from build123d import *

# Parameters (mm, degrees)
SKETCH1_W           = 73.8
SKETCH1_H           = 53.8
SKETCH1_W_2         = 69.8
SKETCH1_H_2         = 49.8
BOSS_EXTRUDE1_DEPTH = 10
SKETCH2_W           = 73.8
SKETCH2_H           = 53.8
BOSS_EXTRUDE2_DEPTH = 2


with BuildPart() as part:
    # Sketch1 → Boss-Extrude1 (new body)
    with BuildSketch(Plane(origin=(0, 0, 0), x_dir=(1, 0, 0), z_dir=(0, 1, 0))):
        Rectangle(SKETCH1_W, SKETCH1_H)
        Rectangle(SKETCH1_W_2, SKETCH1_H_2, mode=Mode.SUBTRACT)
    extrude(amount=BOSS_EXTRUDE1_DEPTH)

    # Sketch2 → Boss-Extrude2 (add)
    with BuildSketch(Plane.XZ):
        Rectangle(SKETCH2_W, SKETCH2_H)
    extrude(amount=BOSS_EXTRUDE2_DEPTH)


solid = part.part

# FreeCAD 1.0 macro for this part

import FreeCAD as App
import Part
import Sketcher

V = App.Vector

doc = App.newDocument("Part")
body = doc.addObject("PartDesign::Body", "Body")

# Sketch on XZ plane
sketch1 = body.newObject("Sketcher::SketchObject", "Sketch")
sketch1.AttachmentSupport = (doc.getObject("XZ_Plane"), [""])
sketch1.MapMode = "FlatFace"
sketch1.addGeometry(Part.LineSegment(V(-37, -27, 0), V(-37, 27, 0)), False)
sketch1.addGeometry(Part.LineSegment(V(-37, 27, 0), V(37, 27, 0)), False)
sketch1.addGeometry(Part.LineSegment(V(37, 27, 0), V(37, -27, 0)), False)
sketch1.addGeometry(Part.LineSegment(V(37, -27, 0), V(-37, -27, 0)), False)
sketch1.addGeometry(Part.LineSegment(V(35, 25, 0), V(-35, 25, 0)), False)
sketch1.addGeometry(Part.LineSegment(V(-35, 25, 0), V(-35, -25, 0)), False)
sketch1.addGeometry(Part.LineSegment(V(-35, -25, 0), V(35, -25, 0)), False)
sketch1.addGeometry(Part.LineSegment(V(35, -25, 0), V(35, 25, 0)), False)
sketch1.addConstraint(Sketcher.Constraint("Coincident", 0, 2, 1, 1))
sketch1.addConstraint(Sketcher.Constraint("Coincident", 1, 2, 2, 1))
sketch1.addConstraint(Sketcher.Constraint("Coincident", 2, 2, 3, 1))
sketch1.addConstraint(Sketcher.Constraint("Coincident", 3, 2, 0, 1))
sketch1.addConstraint(Sketcher.Constraint("Coincident", 4, 2, 5, 1))
sketch1.addConstraint(Sketcher.Constraint("Coincident", 5, 2, 6, 1))
sketch1.addConstraint(Sketcher.Constraint("Coincident", 6, 2, 7, 1))
sketch1.addConstraint(Sketcher.Constraint("Coincident", 7, 2, 4, 1))
sketch1.addConstraint(Sketcher.Constraint("Vertical", 0))
sketch1.addConstraint(Sketcher.Constraint("Horizontal", 1))
sketch1.addConstraint(Sketcher.Constraint("Vertical", 2))
sketch1.addConstraint(Sketcher.Constraint("Horizontal", 3))
sketch1.addConstraint(Sketcher.Constraint("Horizontal", 4))
sketch1.addConstraint(Sketcher.Constraint("Vertical", 5))
sketch1.addConstraint(Sketcher.Constraint("Horizontal", 6))
sketch1.addConstraint(Sketcher.Constraint("Vertical", 7))
sketch1.addConstraint(Sketcher.Constraint("Symmetric", 0, 2, 2, 2, -1, 1))
sketch1.addConstraint(Sketcher.Constraint("Symmetric", 4, 2, 6, 2, -1, 1))
sketch1.addConstraint(Sketcher.Constraint("DistanceX", 1, 1, 1, 2, 73.8))
sketch1.addConstraint(Sketcher.Constraint("DistanceX", 4, 2, 4, 1, 69.8))
sketch1.addConstraint(Sketcher.Constraint("DistanceY", 0, 1, 0, 2, 53.8))
sketch1.addConstraint(Sketcher.Constraint("DistanceY", 5, 2, 5, 1, 49.8))
pad1 = body.newObject("PartDesign::Pad", "Pad")
pad1.Profile = sketch1
pad1.Length = 10
pad1.Reversed = True

# Sketch on XZ plane
sketch2 = body.newObject("Sketcher::SketchObject", "Sketch001")
sketch2.AttachmentSupport = (doc.getObject("XZ_Plane"), [""])
sketch2.MapMode = "FlatFace"
sketch2.addGeometry(Part.LineSegment(V(-37, 27, 0), V(-37, -27, 0)), False)
sketch2.addGeometry(Part.LineSegment(V(-37, -27, 0), V(37, -27, 0)), False)
sketch2.addGeometry(Part.LineSegment(V(37, -27, 0), V(37, 27, 0)), False)
sketch2.addGeometry(Part.LineSegment(V(37, 27, 0), V(-37, 27, 0)), False)
sketch2.addConstraint(Sketcher.Constraint("Coincident", 0, 2, 1, 1))
sketch2.addConstraint(Sketcher.Constraint("Coincident", 1, 2, 2, 1))
sketch2.addConstraint(Sketcher.Constraint("Coincident", 2, 2, 3, 1))
sketch2.addConstraint(Sketcher.Constraint("Coincident", 3, 2, 0, 1))
sketch2.addConstraint(Sketcher.Constraint("Vertical", 0))
sketch2.addConstraint(Sketcher.Constraint("Horizontal", 1))
sketch2.addConstraint(Sketcher.Constraint("Vertical", 2))
sketch2.addConstraint(Sketcher.Constraint("Horizontal", 3))
sketch2.addConstraint(Sketcher.Constraint("Symmetric", 0, 2, 2, 2, -1, 1))
sketch2.addConstraint(Sketcher.Constraint("DistanceX", 1, 1, 1, 2, 73.8))
sketch2.addConstraint(Sketcher.Constraint("DistanceY", 0, 2, 0, 1, 53.8))
pad2 = body.newObject("PartDesign::Pad", "Pad001")
pad2.Profile = sketch2
pad2.Length = 2

doc.recompute()
